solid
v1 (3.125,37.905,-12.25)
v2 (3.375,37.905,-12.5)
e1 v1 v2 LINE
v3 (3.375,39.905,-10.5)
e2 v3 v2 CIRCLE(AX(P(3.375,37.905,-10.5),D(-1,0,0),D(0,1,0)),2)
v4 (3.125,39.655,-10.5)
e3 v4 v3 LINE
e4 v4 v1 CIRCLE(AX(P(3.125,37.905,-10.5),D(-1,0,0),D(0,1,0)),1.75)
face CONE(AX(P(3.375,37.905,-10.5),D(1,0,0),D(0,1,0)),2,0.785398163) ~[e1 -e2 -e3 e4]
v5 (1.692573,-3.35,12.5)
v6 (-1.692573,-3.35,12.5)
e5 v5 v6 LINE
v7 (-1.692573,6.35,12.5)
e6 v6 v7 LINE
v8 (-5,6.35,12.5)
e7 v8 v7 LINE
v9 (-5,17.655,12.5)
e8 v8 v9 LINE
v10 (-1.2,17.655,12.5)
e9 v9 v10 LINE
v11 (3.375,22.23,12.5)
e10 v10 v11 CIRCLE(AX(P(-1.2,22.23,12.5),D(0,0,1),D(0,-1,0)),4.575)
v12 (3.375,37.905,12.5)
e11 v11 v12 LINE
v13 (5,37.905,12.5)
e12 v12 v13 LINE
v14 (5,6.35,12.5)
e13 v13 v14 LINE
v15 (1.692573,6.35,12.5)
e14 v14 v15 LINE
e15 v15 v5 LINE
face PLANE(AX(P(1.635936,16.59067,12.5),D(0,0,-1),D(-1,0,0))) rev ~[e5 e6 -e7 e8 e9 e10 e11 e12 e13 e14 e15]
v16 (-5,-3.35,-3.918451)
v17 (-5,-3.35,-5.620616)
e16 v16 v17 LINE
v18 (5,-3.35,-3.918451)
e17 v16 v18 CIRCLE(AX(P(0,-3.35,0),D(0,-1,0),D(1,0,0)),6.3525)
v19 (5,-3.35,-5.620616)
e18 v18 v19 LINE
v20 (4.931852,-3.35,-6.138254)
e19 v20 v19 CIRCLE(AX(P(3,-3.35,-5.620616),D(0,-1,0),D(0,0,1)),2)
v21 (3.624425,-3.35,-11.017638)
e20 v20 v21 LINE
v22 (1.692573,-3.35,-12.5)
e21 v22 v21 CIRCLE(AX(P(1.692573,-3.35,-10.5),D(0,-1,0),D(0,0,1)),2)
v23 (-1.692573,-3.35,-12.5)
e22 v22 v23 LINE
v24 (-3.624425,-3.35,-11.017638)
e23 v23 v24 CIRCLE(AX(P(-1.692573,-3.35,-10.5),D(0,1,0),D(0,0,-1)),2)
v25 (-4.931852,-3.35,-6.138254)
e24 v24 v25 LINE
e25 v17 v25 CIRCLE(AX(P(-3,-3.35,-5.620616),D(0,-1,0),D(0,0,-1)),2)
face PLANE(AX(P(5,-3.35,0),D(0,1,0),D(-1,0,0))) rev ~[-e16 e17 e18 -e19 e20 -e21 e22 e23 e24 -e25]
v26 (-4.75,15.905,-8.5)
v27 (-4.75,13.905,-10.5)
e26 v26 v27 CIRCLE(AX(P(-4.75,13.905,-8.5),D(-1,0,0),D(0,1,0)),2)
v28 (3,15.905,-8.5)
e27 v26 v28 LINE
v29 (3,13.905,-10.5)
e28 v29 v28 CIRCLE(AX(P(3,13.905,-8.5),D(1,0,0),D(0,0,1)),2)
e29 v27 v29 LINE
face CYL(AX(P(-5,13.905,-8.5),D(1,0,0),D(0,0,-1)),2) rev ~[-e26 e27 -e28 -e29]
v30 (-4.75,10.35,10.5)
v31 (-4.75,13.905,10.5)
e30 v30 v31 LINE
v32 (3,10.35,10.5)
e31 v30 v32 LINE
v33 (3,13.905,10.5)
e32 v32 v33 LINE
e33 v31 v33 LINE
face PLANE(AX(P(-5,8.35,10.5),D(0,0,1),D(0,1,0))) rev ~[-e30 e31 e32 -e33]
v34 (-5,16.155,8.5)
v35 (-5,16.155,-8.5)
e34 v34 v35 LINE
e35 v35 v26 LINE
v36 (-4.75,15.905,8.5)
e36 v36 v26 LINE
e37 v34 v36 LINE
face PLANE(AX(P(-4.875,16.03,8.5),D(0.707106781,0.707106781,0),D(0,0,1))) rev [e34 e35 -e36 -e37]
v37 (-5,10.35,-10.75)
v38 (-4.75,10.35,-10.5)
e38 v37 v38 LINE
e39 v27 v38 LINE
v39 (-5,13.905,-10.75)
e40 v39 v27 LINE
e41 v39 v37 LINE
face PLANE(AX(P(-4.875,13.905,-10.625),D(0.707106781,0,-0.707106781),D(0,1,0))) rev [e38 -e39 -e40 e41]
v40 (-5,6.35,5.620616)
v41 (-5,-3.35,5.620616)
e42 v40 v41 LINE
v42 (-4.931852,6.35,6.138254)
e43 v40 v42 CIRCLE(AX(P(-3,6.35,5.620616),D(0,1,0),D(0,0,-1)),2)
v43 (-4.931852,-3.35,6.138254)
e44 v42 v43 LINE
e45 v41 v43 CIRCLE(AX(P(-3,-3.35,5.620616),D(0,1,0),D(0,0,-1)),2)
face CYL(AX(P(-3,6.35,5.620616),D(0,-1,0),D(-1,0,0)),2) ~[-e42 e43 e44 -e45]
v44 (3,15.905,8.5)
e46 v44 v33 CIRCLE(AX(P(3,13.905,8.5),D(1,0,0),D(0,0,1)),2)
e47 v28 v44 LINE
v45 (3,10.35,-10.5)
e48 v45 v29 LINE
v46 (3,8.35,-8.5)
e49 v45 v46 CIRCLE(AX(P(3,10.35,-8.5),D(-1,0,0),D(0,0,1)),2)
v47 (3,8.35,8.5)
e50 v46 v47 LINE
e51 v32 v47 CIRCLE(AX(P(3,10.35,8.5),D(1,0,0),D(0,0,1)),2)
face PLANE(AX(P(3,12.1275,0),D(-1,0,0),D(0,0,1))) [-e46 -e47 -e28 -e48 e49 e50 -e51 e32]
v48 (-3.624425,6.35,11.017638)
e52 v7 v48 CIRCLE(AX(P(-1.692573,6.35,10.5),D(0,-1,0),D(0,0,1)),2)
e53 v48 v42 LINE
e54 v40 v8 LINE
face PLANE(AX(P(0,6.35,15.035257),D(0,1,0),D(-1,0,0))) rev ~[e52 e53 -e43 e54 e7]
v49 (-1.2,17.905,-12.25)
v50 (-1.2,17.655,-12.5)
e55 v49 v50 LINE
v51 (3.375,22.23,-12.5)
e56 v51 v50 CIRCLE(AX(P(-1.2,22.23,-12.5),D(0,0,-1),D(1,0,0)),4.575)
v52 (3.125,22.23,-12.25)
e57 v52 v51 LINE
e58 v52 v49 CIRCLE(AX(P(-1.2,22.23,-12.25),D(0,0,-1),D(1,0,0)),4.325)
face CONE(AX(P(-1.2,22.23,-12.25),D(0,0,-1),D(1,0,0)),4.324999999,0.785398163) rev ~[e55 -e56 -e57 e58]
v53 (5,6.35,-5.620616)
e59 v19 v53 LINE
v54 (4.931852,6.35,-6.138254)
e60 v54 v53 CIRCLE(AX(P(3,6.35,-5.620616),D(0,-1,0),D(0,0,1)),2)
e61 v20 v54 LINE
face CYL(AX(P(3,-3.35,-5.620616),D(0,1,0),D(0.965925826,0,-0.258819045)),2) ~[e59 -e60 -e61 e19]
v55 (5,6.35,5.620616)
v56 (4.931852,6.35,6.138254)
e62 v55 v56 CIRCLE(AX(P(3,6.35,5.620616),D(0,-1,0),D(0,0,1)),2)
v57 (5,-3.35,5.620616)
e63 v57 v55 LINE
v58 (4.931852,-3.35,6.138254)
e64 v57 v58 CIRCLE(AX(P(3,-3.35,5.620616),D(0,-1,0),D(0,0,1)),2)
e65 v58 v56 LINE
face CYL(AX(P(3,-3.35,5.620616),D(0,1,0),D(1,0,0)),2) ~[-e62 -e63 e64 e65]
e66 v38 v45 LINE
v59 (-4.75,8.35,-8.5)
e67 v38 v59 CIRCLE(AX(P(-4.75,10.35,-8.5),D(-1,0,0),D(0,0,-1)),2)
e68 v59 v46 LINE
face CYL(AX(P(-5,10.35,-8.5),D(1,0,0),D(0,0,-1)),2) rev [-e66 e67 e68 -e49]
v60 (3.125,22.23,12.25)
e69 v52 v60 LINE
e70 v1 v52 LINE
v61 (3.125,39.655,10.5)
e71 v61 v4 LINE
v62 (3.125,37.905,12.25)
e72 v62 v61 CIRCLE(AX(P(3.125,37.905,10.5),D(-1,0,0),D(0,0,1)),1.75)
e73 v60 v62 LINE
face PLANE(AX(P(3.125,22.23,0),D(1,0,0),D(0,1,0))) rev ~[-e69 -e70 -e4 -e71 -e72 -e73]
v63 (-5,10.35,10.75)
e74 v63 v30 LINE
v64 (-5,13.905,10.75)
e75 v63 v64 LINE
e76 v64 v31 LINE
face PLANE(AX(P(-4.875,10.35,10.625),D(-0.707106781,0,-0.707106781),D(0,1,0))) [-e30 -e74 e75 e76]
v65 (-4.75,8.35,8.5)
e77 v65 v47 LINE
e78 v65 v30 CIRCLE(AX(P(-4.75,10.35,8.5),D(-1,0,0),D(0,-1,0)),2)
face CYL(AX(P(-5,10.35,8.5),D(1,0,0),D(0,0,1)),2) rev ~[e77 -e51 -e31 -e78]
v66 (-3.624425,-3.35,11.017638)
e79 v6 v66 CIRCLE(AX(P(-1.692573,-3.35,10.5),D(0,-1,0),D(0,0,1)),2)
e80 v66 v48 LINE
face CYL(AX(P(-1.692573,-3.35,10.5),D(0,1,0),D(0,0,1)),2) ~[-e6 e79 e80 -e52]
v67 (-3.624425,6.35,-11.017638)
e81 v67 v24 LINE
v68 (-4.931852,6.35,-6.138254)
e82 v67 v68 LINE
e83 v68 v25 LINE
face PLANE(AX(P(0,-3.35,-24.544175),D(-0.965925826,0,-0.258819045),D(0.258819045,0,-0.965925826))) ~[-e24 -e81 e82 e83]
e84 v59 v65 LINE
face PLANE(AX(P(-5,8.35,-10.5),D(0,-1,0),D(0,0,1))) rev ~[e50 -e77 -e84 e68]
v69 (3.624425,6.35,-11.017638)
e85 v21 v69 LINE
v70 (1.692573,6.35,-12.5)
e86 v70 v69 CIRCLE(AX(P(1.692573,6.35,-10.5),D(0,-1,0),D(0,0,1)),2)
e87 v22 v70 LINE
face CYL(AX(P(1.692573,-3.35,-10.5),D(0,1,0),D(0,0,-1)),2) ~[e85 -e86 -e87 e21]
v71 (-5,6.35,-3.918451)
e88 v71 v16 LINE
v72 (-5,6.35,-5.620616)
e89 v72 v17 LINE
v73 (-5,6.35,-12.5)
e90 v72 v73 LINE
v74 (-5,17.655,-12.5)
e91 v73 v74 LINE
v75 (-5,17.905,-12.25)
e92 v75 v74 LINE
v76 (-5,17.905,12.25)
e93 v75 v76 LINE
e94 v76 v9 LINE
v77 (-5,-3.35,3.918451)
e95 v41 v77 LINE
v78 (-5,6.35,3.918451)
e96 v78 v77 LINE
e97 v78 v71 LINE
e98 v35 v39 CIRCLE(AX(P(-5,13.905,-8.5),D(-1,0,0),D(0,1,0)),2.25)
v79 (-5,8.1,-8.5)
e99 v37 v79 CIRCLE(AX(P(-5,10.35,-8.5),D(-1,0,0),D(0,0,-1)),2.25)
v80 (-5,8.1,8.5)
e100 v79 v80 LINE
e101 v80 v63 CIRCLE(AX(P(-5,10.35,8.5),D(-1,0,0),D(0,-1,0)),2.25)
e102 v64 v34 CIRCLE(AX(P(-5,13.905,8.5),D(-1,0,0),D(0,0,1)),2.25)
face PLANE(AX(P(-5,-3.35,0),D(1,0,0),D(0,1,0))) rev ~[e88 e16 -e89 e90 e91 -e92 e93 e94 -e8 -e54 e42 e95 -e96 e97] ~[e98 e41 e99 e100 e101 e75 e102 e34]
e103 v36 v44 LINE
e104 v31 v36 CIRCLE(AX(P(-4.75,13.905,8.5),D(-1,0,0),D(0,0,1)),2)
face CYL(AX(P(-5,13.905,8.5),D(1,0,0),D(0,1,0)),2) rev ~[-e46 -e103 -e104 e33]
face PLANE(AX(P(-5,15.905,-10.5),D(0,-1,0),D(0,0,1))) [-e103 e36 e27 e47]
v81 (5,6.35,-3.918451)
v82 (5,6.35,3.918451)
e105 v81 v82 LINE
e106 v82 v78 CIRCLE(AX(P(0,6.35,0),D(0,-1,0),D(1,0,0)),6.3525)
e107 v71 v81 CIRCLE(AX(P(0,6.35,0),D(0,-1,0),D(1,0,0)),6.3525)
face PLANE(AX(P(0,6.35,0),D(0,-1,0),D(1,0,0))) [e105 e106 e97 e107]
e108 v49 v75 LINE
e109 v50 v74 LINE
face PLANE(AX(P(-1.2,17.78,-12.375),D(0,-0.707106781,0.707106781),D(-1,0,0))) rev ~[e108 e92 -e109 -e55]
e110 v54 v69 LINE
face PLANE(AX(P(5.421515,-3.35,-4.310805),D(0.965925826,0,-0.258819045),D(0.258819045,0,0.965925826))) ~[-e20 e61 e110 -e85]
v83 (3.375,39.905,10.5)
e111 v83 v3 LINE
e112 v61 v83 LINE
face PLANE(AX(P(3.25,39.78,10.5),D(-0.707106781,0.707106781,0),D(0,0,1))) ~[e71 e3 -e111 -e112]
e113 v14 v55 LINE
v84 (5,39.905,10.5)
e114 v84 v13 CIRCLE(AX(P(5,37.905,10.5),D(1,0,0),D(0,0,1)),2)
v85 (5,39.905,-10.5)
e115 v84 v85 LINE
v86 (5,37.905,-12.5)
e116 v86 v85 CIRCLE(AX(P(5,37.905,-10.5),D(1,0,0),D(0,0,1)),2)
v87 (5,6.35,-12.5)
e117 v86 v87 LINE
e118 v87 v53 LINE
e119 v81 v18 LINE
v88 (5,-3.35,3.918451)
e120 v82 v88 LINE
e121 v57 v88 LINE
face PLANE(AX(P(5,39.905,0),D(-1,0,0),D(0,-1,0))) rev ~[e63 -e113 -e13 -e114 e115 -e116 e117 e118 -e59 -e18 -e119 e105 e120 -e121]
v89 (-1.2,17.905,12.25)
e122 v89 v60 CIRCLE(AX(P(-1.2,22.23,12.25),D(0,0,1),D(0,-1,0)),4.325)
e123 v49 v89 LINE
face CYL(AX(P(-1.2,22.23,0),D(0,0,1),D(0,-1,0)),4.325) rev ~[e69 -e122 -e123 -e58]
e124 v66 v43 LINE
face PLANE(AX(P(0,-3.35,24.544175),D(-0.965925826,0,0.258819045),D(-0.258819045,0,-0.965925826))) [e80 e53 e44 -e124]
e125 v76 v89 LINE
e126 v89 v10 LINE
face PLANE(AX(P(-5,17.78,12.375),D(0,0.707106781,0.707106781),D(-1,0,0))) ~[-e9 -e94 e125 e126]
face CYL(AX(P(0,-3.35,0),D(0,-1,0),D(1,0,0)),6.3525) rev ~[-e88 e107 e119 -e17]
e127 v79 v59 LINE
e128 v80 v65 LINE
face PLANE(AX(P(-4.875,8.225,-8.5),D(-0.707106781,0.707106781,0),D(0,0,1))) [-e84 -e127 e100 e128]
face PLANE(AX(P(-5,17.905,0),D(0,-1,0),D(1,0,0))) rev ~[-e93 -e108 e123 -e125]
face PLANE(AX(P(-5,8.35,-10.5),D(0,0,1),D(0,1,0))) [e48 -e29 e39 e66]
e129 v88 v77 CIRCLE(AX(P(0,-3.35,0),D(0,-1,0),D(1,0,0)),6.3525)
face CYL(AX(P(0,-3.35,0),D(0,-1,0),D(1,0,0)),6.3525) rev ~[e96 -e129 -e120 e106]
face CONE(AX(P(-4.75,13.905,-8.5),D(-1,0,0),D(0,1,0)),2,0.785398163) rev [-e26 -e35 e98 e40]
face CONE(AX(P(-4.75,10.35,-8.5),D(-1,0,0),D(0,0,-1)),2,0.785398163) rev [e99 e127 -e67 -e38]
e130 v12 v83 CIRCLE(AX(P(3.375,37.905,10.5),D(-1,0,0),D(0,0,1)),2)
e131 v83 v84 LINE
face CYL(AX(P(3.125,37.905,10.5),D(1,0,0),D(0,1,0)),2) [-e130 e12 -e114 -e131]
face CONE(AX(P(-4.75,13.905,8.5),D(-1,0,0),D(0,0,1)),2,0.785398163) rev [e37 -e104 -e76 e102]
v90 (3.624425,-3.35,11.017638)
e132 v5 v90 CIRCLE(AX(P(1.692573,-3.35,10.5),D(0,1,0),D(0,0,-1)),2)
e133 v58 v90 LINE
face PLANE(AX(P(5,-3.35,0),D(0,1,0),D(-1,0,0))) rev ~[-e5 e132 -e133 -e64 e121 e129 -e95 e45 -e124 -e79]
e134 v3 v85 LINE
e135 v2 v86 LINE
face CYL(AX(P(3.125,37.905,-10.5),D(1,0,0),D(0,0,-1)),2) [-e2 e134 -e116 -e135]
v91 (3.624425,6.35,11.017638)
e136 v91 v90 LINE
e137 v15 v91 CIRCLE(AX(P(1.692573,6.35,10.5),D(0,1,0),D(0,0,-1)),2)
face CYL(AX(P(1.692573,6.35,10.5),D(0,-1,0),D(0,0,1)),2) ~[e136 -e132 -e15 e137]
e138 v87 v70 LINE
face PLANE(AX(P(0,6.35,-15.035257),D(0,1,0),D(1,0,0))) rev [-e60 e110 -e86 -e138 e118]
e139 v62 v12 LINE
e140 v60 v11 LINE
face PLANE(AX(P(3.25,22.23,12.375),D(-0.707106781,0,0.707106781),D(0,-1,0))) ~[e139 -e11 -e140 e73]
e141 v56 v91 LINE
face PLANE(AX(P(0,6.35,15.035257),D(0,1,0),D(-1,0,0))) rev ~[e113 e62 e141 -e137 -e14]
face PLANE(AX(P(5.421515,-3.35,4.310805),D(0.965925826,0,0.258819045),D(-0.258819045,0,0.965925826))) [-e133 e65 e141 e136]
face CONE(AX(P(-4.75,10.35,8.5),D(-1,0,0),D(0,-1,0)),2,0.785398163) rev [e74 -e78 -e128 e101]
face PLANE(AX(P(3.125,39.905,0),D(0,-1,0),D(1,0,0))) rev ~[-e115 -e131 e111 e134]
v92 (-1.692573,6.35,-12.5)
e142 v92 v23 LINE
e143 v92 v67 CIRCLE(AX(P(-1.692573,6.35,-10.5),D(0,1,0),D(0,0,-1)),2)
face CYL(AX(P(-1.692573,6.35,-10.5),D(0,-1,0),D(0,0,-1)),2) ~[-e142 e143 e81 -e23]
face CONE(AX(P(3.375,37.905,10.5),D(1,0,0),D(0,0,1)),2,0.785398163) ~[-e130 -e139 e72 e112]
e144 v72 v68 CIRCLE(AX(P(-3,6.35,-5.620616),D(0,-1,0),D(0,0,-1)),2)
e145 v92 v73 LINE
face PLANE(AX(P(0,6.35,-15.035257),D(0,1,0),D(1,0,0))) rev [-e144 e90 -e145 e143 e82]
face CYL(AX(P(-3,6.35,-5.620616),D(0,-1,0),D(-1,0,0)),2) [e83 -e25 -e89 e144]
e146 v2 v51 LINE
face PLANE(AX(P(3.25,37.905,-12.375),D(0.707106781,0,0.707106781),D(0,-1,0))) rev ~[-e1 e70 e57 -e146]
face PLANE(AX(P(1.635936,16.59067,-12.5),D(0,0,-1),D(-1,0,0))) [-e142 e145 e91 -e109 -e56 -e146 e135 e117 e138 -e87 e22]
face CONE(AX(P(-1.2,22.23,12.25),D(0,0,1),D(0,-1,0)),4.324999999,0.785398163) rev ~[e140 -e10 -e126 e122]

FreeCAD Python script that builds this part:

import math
import FreeCAD as App
import Part
import Sketcher

V = App.Vector
Q = App.Units.Quantity


def edges_at(feature, points):
    """Names of the edges that pass closest to the given points."""
    edges = feature.Shape.Edges
    near = lambda p: min(range(len(edges)), key=lambda i: edges[i].distToShape(Part.Vertex(*p))[0])
    return sorted({f"Edge{near(p) + 1}" for p in points})


def add_polygon(sketch, points):
    """Adds a closed chain of lines whose ends are joined by coincident constraints."""
    first, n = sketch.GeometryCount, len(points)
    for a, b in zip(points, points[1:] + points[:1]):
        sketch.addGeometry(Part.LineSegment(App.Vector(*a, 0), App.Vector(*b, 0)), False)
    for i in range(n):
        sketch.addConstraint(Sketcher.Constraint("Coincident", first + i, 2, first + (i + 1) % n, 1))

doc = App.newDocument("Part")
body = doc.addObject("PartDesign::Body", "Body")

# Sketch on XY plane
sketch1 = doc.addObject("Sketcher::SketchObject", "Sketch")
body.addObject(sketch1)
sketch1.AttachmentSupport = (doc.XY_Plane, [""])
sketch1.MapMode = "FlatFace"
sketch1.addGeometry([
    Part.LineSegment(V(3.1, 39.9, 0), V(3.1, 22.2, 0)),  # 0
    Part.ArcOfCircle(Part.Circle(V(-1.2, 22.2, 0), V(0, 0, 1), 4.3), math.radians(-90), math.radians(0)),  # 1
    Part.LineSegment(V(-1.2, 17.9, 0), V(-5, 17.9, 0)),  # 2
    Part.LineSegment(V(-5, 17.9, 0), V(-5, -3.4, 0)),  # 3
    Part.LineSegment(V(-5, -3.4, 0), V(5, -3.4, 0)),  # 4
    Part.LineSegment(V(5, -3.4, 0), V(5, 39.9, 0)),  # 5
    Part.LineSegment(V(5, 39.9, 0), V(3.1, 39.9, 0)),  # 6
], False)
sketch1.addConstraint([
    Sketcher.Constraint("Tangent", 0, 2, 1, 2),
    Sketcher.Constraint("Tangent", 1, 1, 2, 1),
    Sketcher.Constraint("Coincident", 2, 2, 3, 1),
    Sketcher.Constraint("Coincident", 3, 2, 4, 1),
    Sketcher.Constraint("Coincident", 4, 2, 5, 1),
    Sketcher.Constraint("Coincident", 5, 2, 6, 1),
    Sketcher.Constraint("Coincident", 6, 2, 0, 1),
    Sketcher.Constraint("Vertical", 0),
    Sketcher.Constraint("Horizontal", 2),
    Sketcher.Constraint("Vertical", 3),
    Sketcher.Constraint("Horizontal", 4),
    Sketcher.Constraint("Vertical", 5),
    Sketcher.Constraint("Horizontal", 6),
    Sketcher.Constraint("DistanceX", 4, 1, 4, 2, Q("10 mm")),
    Sketcher.Constraint("DistanceX", 2, 2, 2, 1, Q("3.8 mm")),
    Sketcher.Constraint("DistanceX", 2, 2, -1, 1, Q("5 mm")),
    Sketcher.Constraint("Radius", 1, Q("4.325 mm")),
    Sketcher.Constraint("DistanceY", 1, 1, 5, 2, Q("22 mm")),
    Sketcher.Constraint("DistanceY", 3, 2, 3, 1, Q("21.255 mm")),
    Sketcher.Constraint("DistanceY", -1, 1, 1, 3, Q("22.23 mm")),
])
pad1 = doc.addObject("PartDesign::Pad", "Pad")
body.addObject(pad1)
pad1.Profile = sketch1
pad1.Length = 25
pad1.Midplane = True

# Sketch on XZ plane
sketch2 = doc.addObject("Sketcher::SketchObject", "Sketch001")
body.addObject(sketch2)
sketch2.AttachmentSupport = (doc.XZ_Plane, [""])
sketch2.MapMode = "FlatFace"
sketch2.AttachmentOffset = App.Placement(V(0, 0, 3.35), App.Rotation())
sketch2.addGeometry(Part.Circle(V(0, 0, 0), V(0, 0, 1), 6), False)
sketch2.addConstraint([
    Sketcher.Constraint("Coincident", 0, 3, -1, 1),
    Sketcher.Constraint("Diameter", 0, Q("12.705 mm")),
])
pocket1 = doc.addObject("PartDesign::Pocket", "Pocket")
body.addObject(pocket1)
pocket1.Profile = sketch2
pocket1.Length = 9.7
doc.recompute()

fillet = doc.addObject("PartDesign::Fillet", "Fillet")
body.addObject(fillet)
fillet.Base = (pocket1, edges_at(pocket1, [(4.062, 39.905, 12.5), (4.062, 39.905, -12.5)]))
fillet.Radius = 2

# Sketch on XZ plane
sketch3 = doc.addObject("Sketcher::SketchObject", "Sketch002")
body.addObject(sketch3)
sketch3.AttachmentSupport = (doc.XZ_Plane, [""])
sketch3.MapMode = "FlatFace"
sketch3.AttachmentOffset = App.Placement(V(0, 0, 3.35), App.Rotation())
add_polygon(sketch3, [(-5.4, 4.3), (0, 24.5), (5.4, 4.3), (5.4, 0), (10.4, 0), (10.4, 29.5), (-10.4, 29.5), (-10.4, 0), (-5.4, 0)])  # lines 0-8
sketch3.addConstraint([
    Sketcher.Constraint("Vertical", 2),
    Sketcher.Constraint("Horizontal", 3),
    Sketcher.Constraint("Vertical", 4),
    Sketcher.Constraint("Horizontal", 5),
    Sketcher.Constraint("Vertical", 6),
    Sketcher.Constraint("Horizontal", 7),
    Sketcher.Constraint("Vertical", 8),
    Sketcher.Constraint("Symmetric", 3, 2, 6, 2, -1, 1),
    Sketcher.Constraint("Symmetric", 2, 2, 7, 2, -2),
    Sketcher.Constraint("PointOnObject", 0, 2, -2),
    Sketcher.Constraint("Horizontal", 1, 2, 8, 2),
    Sketcher.Constraint("DistanceX", 3, 1, 3, 2, Q("5 mm")),
    Sketcher.Constraint("Angle", 0, Q("75 deg")),
    Sketcher.Constraint("DistanceY", 0, 2, 4, 2, Q("5 mm")),
    Sketcher.Constraint("DistanceX", 5, 2, 5, 1, Q("20.843031 mm")),
    Sketcher.Constraint("DistanceY", 2, 2, 2, 1, Q("4.310805 mm")),
])
pocket2 = doc.addObject("PartDesign::Pocket", "Pocket001")
body.addObject(pocket2)
pocket2.Profile = sketch3
pocket2.Length = 9.7
doc.recompute()

mirrored = doc.addObject("PartDesign::Mirrored", "Mirrored")
body.addObject(mirrored)
mirrored.Originals = [pocket2]
mirrored.MirrorPlane = (doc.XY_Plane, [""])
body.Tip = mirrored
doc.recompute()

fillet2 = doc.addObject("PartDesign::Fillet", "Fillet001")
body.addObject(fillet2)
fillet2.Base = (mirrored, edges_at(mirrored, [
    (-3.227, 1.5, 12.5),
    (3.227, 1.5, 12.5),
    (5, 1.5, 5.884),
    (-5, 1.5, 5.884),
    (-3.227, 1.5, -12.5),
    (3.227, 1.5, -12.5),
    (-5, 1.5, -5.884),
    (5, 1.5, -5.884),
]))
fillet2.Radius = 2

# Sketch on YZ plane
sketch4 = doc.addObject("Sketcher::SketchObject", "Sketch003")
body.addObject(sketch4)
sketch4.AttachmentSupport = (doc.YZ_Plane, [""])
sketch4.MapMode = "FlatFace"
sketch4.AttachmentOffset = App.Placement(V(0, 0, -5), App.Rotation())
add_polygon(sketch4, [(16, -10), (8, -10), (8, 10), (16, 10)])  # lines 0-3
sketch4.addConstraint([
    Sketcher.Constraint("Horizontal", 0),
    Sketcher.Constraint("Vertical", 1),
    Sketcher.Constraint("Horizontal", 2),
    Sketcher.Constraint("Vertical", 3),
    Sketcher.Constraint("DistanceY", 1, 1, 1, 2, Q("21 mm")),
    Sketcher.Constraint("DistanceY", 0, 2, -1, 1, Q("10.5 mm")),
    Sketcher.Constraint("DistanceX", 0, 2, 0, 1, Q("7.555 mm")),
    Sketcher.Constraint("DistanceX", -1, 1, 0, 2, Q("8.35 mm")),
])
pocket3 = doc.addObject("PartDesign::Pocket", "Pocket002")
body.addObject(pocket3)
pocket3.Profile = sketch4
pocket3.Length = 8
pocket3.Reversed = True
doc.recompute()

fillet3 = doc.addObject("PartDesign::Fillet", "Fillet002")
body.addObject(fillet3)
fillet3.Base = (pocket3, edges_at(pocket3, [
    (-1, 8.35, -10.5),
    (-1, 15.905, -10.5),
    (-1, 15.905, 10.5),
    (-1, 8.35, 10.5),
]))
fillet3.Radius = 2
doc.recompute()

chamfer = doc.addObject("PartDesign::Chamfer", "Chamfer")
body.addObject(chamfer)
chamfer.Base = (fillet3, edges_at(fillet3, [
    (-5, 12.127, 10.5),
    (-5, 8.35, 0),
    (-5, 12.127, -10.5),
    (-5, 15.905, 0),
    (-5, 8.936, 9.914),
    (-5, 8.936, -9.914),
    (-5, 15.319, 9.914),
    (-5, 15.319, -9.914),
    (3.125, 39.905, 0),
    (3.125, 30.067, -12.5),
    (3.125, 30.067, 12.5),
    (3.125, 39.319, 11.914),
    (1.858, 19.172, 12.5),
    (3.125, 39.319, -11.914),
    (-3.1, 17.905, 12.5),
    (-3.1, 17.905, -12.5),
    (1.858, 19.172, -12.5),
]))
chamfer.Size = 0.25

doc.recompute()
